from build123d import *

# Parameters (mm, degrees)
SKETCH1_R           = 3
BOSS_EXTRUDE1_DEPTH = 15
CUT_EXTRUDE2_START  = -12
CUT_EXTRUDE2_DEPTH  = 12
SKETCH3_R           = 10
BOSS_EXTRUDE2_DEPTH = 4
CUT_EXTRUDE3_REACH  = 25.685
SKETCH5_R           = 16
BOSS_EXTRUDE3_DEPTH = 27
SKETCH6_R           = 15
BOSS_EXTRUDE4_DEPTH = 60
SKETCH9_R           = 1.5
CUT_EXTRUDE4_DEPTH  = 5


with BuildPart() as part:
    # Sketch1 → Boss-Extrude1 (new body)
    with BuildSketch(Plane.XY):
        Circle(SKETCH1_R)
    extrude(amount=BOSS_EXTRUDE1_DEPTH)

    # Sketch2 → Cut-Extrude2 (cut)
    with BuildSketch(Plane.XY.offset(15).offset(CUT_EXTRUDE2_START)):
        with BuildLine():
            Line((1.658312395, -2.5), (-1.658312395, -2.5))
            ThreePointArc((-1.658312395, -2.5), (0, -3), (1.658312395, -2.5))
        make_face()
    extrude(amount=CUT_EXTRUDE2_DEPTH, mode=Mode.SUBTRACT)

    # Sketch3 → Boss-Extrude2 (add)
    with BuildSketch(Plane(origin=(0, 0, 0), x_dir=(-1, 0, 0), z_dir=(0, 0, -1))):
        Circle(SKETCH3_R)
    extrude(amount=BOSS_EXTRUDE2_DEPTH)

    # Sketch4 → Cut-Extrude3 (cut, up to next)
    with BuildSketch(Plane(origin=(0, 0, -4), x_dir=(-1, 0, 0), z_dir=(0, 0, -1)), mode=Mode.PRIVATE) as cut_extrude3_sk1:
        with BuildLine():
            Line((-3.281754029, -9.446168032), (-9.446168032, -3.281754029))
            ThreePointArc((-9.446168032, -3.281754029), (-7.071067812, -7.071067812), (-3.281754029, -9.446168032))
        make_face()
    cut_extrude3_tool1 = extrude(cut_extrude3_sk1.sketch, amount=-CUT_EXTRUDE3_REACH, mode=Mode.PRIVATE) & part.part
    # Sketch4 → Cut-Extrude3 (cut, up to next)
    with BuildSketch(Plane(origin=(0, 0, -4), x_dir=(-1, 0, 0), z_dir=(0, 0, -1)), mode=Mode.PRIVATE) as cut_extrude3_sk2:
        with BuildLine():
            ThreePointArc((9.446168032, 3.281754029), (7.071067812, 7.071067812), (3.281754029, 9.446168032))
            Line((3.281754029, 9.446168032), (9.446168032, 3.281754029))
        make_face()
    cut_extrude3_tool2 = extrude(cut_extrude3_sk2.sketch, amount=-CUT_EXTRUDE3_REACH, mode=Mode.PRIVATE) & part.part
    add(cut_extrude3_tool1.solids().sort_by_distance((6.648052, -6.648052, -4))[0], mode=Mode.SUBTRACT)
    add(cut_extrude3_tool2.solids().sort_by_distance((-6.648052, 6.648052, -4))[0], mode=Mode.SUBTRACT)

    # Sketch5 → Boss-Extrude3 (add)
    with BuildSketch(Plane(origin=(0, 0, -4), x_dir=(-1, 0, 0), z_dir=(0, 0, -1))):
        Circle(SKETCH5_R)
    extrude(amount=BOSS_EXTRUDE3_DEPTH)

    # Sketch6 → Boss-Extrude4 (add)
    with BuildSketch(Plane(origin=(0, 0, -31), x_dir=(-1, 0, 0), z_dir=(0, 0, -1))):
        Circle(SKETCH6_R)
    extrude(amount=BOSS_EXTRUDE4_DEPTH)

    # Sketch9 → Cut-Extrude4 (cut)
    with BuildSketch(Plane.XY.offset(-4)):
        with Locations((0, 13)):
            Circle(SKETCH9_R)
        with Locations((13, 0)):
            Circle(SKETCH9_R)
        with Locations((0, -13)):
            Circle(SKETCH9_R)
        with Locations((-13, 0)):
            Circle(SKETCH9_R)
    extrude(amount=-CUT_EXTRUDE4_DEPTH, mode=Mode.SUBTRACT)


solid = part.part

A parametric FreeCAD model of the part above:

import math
import FreeCAD as App
import Part
import Sketcher
from FreeCAD import Vector
Q = App.Units.Quantity

doc = App.newDocument("Part")
body = doc.addObject("PartDesign::Body", "Body")

sketch1 = body.newObject("Sketcher::SketchObject", "Sketch")
sketch1.AttachmentSupport = (doc.getObject("XY_Plane"), [""])
sketch1.MapMode = "FlatFace"
sketch1.addGeometry(Part.Circle(Vector(0, 0, 0), Vector(0, 0, 1), 3), False)
sketch1.addConstraint([
    Sketcher.Constraint("Coincident", 0, 3, -1, 1),
    Sketcher.Constraint("Diameter", 0, 6.0),
])
pad1 = body.newObject("PartDesign::Pad", "Pad")
pad1.Profile = sketch1
pad1.Length = 15

sketch2 = body.newObject("Sketcher::SketchObject", "Sketch001")
sketch2.AttachmentSupport = (doc.getObject("XY_Plane"), [""])
sketch2.MapMode = "FlatFace"
sketch2.AttachmentOffset = App.Placement(Vector(0, 0, 3), App.Rotation())
sketch2.addGeometry([
    Part.LineSegment(Vector(1.7, -2.5, 0), Vector(-1.7, -2.5, 0)),
    Part.ArcOfCircle(Part.Circle(Vector(0, 0, 0), Vector(0, 0, 1), 3), math.radians(-124), math.radians(-56)),
], False)
sketch2.addConstraint([
    Sketcher.Constraint("Coincident", 0, 1, 1, 2),
    Sketcher.Constraint("Coincident", 1, 1, 0, 2),
    Sketcher.Constraint("Horizontal", 0),
    Sketcher.Constraint("Coincident", 1, 3, -1, 1),
    Sketcher.Constraint("Radius", 1, 3.0),
    Sketcher.Constraint("DistanceY", 0, 1, -1, 1, 2.5),
])
pocket1 = body.newObject("PartDesign::Pocket", "Pocket")
pocket1.Profile = sketch2
pocket1.Length = 12
pocket1.Reversed = True

sketch3 = body.newObject("Sketcher::SketchObject", "Sketch002")
sketch3.AttachmentSupport = (doc.getObject("XY_Plane"), [""])
sketch3.MapMode = "FlatFace"
sketch3.addGeometry(Part.Circle(Vector(0, 0, 0), Vector(0, 0, 1), 10), False)
sketch3.addConstraint([
    Sketcher.Constraint("Coincident", 0, 3, -1, 1),
    Sketcher.Constraint("Diameter", 0, 20.0),
])
pad2 = body.newObject("PartDesign::Pad", "Pad001")
pad2.Profile = sketch3
pad2.Length = 4
pad2.Reversed = True

sketch4 = body.newObject("Sketcher::SketchObject", "Sketch003")
sketch4.AttachmentSupport = (doc.getObject("XY_Plane"), [""])
sketch4.MapMode = "FlatFace"
sketch4.AttachmentOffset = App.Placement(Vector(0, 0, -4), App.Rotation())
sketch4.addGeometry([
    Part.LineSegment(Vector(3, -9, 0), Vector(9, -3, 0)),
    Part.ArcOfCircle(Part.Circle(Vector(0, 0, 0), Vector(0, 0, 1), 10), math.radians(-71), math.radians(-19)),
], False)
sketch4.addConstraint([
    Sketcher.Constraint("Coincident", 0, 1, 1, 1),
    Sketcher.Constraint("Coincident", 1, 2, 0, 2),
    Sketcher.Constraint("Coincident", 1, 3, -1, 1),
    Sketcher.Constraint("Radius", 1, 10.0),
    Sketcher.Constraint("Angle", 0, Q("45 deg")),
    Sketcher.Constraint("DistanceY", 0, 1, -1, 1, 9.446168),
])
pocket2 = body.newObject("PartDesign::Pocket", "Pocket001")
pocket2.Profile = sketch4
pocket2.Type = "UpToFirst"
pocket2.Reversed = True

sketch5 = body.newObject("Sketcher::SketchObject", "Sketch004")
sketch5.AttachmentSupport = (doc.getObject("XY_Plane"), [""])
sketch5.MapMode = "FlatFace"
sketch5.AttachmentOffset = App.Placement(Vector(0, 0, -4), App.Rotation())
sketch5.addGeometry([
    Part.ArcOfCircle(Part.Circle(Vector(0, 0, 0), Vector(0, 0, 1), 10), math.radians(109), math.radians(161)),
    Part.LineSegment(Vector(-3, 9, 0), Vector(-9, 3, 0)),
], False)
sketch5.addConstraint([
    Sketcher.Constraint("Coincident", 0, 1, 1, 1),
    Sketcher.Constraint("Coincident", 1, 2, 0, 2),
    Sketcher.Constraint("Coincident", 0, 3, -1, 1),
    Sketcher.Constraint("Radius", 0, 10.0),
    Sketcher.Constraint("Angle", 1, Q("-135 deg")),
    Sketcher.Constraint("DistanceY", -1, 1, 0, 1, 9.446168),
])
pocket3 = body.newObject("PartDesign::Pocket", "Pocket002")
pocket3.Profile = sketch5
pocket3.Type = "UpToFirst"
pocket3.Reversed = True

sketch6 = body.newObject("Sketcher::SketchObject", "Sketch005")
sketch6.AttachmentSupport = (doc.getObject("XY_Plane"), [""])
sketch6.MapMode = "FlatFace"
sketch6.AttachmentOffset = App.Placement(Vector(0, 0, -4), App.Rotation())
sketch6.addGeometry(Part.Circle(Vector(0, 0, 0), Vector(0, 0, 1), 16), False)
sketch6.addConstraint([
    Sketcher.Constraint("Coincident", 0, 3, -1, 1),
    Sketcher.Constraint("Diameter", 0, 32.0),
])
pad3 = body.newObject("PartDesign::Pad", "Pad002")
pad3.Profile = sketch6
pad3.Length = 27
pad3.Reversed = True

sketch7 = body.newObject("Sketcher::SketchObject", "Sketch006")
sketch7.AttachmentSupport = (doc.getObject("XY_Plane"), [""])
sketch7.MapMode = "FlatFace"
sketch7.AttachmentOffset = App.Placement(Vector(0, 0, -31), App.Rotation())
sketch7.addGeometry(Part.Circle(Vector(0, 0, 0), Vector(0, 0, 1), 15), False)
sketch7.addConstraint([
    Sketcher.Constraint("Coincident", 0, 3, -1, 1),
    Sketcher.Constraint("Diameter", 0, 30.0),
])
pad4 = body.newObject("PartDesign::Pad", "Pad003")
pad4.Profile = sketch7
pad4.Length = 60
pad4.Reversed = True

sketch8 = body.newObject("Sketcher::SketchObject", "Sketch007")
sketch8.AttachmentSupport = (doc.getObject("XY_Plane"), [""])
sketch8.MapMode = "FlatFace"
sketch8.AttachmentOffset = App.Placement(Vector(0, 0, -4), App.Rotation())
sketch8.addGeometry([
    Part.Circle(Vector(0, 13, 0), Vector(0, 0, 1), 1.5),
    Part.Circle(Vector(13, 0, 0), Vector(0, 0, 1), 1.5),
    Part.Circle(Vector(0, -13, 0), Vector(0, 0, 1), 1.5),
    Part.Circle(Vector(-13, 0, 0), Vector(0, 0, 1), 1.5),
], False)
sketch8.addConstraint([
    Sketcher.Constraint("Equal", 0, 1),
    Sketcher.Constraint("Equal", 1, 2),
    Sketcher.Constraint("Equal", 2, 3),
    Sketcher.Constraint("Symmetric", 0, 3, 2, 3, -1, 1),
    Sketcher.Constraint("Symmetric", 1, 3, 3, 3, -1, 1),
    Sketcher.Constraint("PointOnObject", 0, 3, -2),
    Sketcher.Constraint("PointOnObject", 1, 3, -1),
    Sketcher.Constraint("Diameter", 0, 3.0),
    Sketcher.Constraint("DistanceY", -1, 1, 0, 3, 13.0),
    Sketcher.Constraint("DistanceX", -1, 1, 1, 3, 13.0),
])
pocket4 = body.newObject("PartDesign::Pocket", "Pocket003")
pocket4.Profile = sketch8
pocket4.Length = 5

doc.recompute()
